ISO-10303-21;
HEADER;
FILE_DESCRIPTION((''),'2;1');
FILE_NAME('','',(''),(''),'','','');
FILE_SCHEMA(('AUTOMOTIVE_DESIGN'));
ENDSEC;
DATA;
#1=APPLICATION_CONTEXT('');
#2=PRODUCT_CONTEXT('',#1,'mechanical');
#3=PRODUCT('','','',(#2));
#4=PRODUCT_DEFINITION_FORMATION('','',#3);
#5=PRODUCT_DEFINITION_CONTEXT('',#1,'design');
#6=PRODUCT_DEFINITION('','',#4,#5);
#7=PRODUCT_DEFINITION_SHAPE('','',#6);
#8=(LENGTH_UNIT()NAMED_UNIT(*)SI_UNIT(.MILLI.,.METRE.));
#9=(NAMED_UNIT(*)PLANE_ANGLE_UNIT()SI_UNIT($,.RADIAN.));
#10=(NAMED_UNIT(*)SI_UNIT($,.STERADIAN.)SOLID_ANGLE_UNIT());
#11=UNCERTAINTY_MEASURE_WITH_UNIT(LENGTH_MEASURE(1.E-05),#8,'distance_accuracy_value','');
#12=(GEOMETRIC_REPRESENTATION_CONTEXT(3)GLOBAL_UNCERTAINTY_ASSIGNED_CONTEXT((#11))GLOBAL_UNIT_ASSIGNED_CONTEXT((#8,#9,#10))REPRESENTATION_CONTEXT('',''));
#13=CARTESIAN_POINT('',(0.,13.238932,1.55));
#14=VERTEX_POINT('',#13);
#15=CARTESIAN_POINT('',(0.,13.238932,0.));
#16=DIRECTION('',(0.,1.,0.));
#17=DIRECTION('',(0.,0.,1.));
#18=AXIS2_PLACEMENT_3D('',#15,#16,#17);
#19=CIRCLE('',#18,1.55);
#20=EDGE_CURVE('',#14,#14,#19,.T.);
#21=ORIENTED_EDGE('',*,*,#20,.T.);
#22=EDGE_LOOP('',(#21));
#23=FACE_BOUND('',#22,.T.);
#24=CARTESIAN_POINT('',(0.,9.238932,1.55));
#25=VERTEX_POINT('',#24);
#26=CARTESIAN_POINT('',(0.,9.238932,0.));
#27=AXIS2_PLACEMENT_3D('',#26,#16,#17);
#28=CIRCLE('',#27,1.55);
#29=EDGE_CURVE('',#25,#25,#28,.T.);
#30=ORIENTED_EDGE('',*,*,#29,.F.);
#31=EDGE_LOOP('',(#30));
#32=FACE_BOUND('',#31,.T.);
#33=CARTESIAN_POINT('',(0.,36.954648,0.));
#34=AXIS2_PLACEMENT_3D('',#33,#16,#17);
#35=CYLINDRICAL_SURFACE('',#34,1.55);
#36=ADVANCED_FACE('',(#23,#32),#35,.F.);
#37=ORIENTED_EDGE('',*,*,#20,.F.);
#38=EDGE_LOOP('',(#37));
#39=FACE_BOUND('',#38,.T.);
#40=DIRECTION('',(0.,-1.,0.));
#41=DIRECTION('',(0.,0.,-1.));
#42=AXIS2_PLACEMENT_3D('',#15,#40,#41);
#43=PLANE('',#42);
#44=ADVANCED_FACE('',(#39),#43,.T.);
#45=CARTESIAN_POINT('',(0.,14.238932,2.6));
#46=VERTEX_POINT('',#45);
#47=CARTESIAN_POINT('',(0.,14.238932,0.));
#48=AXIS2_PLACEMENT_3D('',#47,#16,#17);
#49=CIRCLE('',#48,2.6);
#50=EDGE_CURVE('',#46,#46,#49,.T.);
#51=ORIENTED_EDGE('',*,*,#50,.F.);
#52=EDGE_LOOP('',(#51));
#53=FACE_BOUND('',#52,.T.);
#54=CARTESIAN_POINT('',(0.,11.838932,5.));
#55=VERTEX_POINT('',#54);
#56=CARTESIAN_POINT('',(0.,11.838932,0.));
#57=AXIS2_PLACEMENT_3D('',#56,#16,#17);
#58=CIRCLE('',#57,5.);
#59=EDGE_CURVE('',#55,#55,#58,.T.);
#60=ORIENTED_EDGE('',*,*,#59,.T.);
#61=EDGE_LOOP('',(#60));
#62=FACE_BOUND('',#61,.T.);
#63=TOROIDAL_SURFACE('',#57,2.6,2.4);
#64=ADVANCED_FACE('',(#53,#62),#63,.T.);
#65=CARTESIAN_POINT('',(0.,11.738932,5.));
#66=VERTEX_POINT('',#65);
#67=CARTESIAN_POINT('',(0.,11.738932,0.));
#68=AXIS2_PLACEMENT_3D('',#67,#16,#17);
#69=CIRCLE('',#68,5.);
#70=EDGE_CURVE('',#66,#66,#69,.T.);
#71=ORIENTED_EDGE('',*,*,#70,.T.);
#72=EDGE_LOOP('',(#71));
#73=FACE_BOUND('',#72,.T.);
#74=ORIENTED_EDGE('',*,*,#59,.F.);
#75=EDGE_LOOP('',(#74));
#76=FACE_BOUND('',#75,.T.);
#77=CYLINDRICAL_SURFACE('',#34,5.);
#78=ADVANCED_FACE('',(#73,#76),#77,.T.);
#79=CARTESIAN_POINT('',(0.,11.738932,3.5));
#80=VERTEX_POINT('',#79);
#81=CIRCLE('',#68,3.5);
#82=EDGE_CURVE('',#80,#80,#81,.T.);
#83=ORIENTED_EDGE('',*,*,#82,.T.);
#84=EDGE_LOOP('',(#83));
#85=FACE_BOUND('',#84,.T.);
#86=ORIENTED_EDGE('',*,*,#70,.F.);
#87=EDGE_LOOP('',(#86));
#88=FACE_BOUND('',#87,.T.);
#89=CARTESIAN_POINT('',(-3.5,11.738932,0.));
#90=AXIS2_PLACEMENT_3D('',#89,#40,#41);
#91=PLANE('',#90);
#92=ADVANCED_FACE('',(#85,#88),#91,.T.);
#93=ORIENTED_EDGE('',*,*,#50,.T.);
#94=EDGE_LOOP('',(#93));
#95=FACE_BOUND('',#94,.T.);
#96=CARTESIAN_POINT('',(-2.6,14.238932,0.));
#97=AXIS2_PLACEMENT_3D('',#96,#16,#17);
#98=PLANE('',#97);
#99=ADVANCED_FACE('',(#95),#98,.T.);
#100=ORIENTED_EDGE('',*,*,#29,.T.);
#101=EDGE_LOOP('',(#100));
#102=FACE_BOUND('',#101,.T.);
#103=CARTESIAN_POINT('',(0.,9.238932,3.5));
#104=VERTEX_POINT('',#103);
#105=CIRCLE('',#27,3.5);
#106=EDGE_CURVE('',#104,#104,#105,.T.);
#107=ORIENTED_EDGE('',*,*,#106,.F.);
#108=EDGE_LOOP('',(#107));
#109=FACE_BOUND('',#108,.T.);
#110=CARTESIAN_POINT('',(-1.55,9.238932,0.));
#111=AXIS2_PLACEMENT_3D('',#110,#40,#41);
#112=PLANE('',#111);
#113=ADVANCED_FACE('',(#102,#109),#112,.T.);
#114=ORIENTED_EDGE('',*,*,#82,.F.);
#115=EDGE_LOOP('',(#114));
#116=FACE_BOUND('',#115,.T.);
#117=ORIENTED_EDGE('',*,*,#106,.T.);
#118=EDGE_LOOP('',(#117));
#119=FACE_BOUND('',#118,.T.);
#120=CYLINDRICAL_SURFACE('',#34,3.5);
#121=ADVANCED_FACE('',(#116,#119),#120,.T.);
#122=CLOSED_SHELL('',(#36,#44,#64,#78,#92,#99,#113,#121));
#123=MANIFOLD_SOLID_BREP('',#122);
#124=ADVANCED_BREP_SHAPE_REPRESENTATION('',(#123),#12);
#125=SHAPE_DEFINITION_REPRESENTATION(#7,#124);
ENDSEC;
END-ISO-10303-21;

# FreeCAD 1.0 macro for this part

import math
import FreeCAD as App
import Part
import Sketcher
Q = App.Units.Quantity

doc = App.newDocument("Part")
params = doc.addObject("Spreadsheet::Sheet", "Params")
for row, (alias, value) in enumerate([
    ("sketch1_radius", "2.4 mm"),
    ("sketch1_height", "4 mm"),
    ("sketch1_height2", "1 mm"),
    ("sketch1_width", "2.6 mm"),
    ("sketch1_width2", "1.5 mm"),
    ("revolution_angle", "360 deg"),
], start=1):
    params.set(f"A{row}", alias)
    params.set(f"B{row}", "=" + value)
    params.setAlias(f"B{row}", alias)

body = doc.addObject("PartDesign::Body", "Body")

sketch1 = body.newObject("Sketcher::SketchObject", "Sketch")
sketch1.AttachmentSupport = (doc.getObject("XY_Plane"), [""])
sketch1.MapMode = "FlatFace"
sketch1.addGeometry([
    Part.LineSegment(App.Vector(-3.5, 9.24, 0), App.Vector(-1.55, 9.24, 0)),
    Part.LineSegment(App.Vector(-1.55, 9.24, 0), App.Vector(-1.55, 13.24, 0)),
    Part.LineSegment(App.Vector(-1.55, 13.24, 0), App.Vector(0, 13.24, 0)),
    Part.LineSegment(App.Vector(0, 13.24, 0), App.Vector(0, 14.24, 0)),
    Part.LineSegment(App.Vector(0, 14.24, 0), App.Vector(-2.6, 14.24, 0)),
    Part.ArcOfCircle(Part.Circle(App.Vector(-2.6, 11.84, 0), App.Vector(0, 0, 1), 2.4), math.radians(90), math.radians(180)),
    Part.LineSegment(App.Vector(-5, 11.84, 0), App.Vector(-5, 11.74, 0)),
    Part.LineSegment(App.Vector(-5, 11.74, 0), App.Vector(-3.5, 11.74, 0)),
    Part.LineSegment(App.Vector(-3.5, 11.74, 0), App.Vector(-3.5, 9.24, 0)),
], False)
sketch1.addConstraint([
    Sketcher.Constraint("Coincident", 0, 2, 1, 1),
    Sketcher.Constraint("Coincident", 1, 2, 2, 1),
    Sketcher.Constraint("Coincident", 2, 2, 3, 1),
    Sketcher.Constraint("Coincident", 3, 2, 4, 1),
    Sketcher.Constraint("Tangent", 4, 2, 5, 1),
    Sketcher.Constraint("Tangent", 5, 2, 6, 1),
    Sketcher.Constraint("Coincident", 6, 2, 7, 1),
    Sketcher.Constraint("Coincident", 7, 2, 8, 1),
    Sketcher.Constraint("Coincident", 8, 2, 0, 1),
    Sketcher.Constraint("Horizontal", 0),
    Sketcher.Constraint("Vertical", 1),
    Sketcher.Constraint("Horizontal", 2),
    Sketcher.Constraint("Vertical", 3),
    Sketcher.Constraint("Horizontal", 4),
    Sketcher.Constraint("Vertical", 6),
    Sketcher.Constraint("Horizontal", 7),
    Sketcher.Constraint("Vertical", 8),
    Sketcher.Constraint("PointOnObject", 2, 2, -2),
    Sketcher.Constraint("Radius", 5, Q("2.4 mm")),
    Sketcher.Constraint("DistanceY", 1, 1, 1, 2, Q("4 mm")),
    Sketcher.Constraint("DistanceY", 3, 1, 3, 2, Q("1 mm")),
    Sketcher.Constraint("DistanceX", 4, 2, 4, 1, Q("2.6 mm")),
    Sketcher.Constraint("DistanceX", 7, 1, 7, 2, Q("1.5 mm")),
    Sketcher.Constraint("DistanceY", 6, 2, 6, 1, Q("0.1 mm")),
    Sketcher.Constraint("DistanceX", 0, 1, 0, 2, Q("1.95 mm")),
    Sketcher.Constraint("DistanceY", -1, 1, 5, 3, Q("11.838932 mm")),
])
sketch1.setExpression("Constraints[18]", "Params.sketch1_radius")
sketch1.setExpression("Constraints[19]", "Params.sketch1_height")
sketch1.setExpression("Constraints[20]", "Params.sketch1_height2")
sketch1.setExpression("Constraints[21]", "Params.sketch1_width")
sketch1.setExpression("Constraints[22]", "Params.sketch1_width2")
revolution = body.newObject("PartDesign::Revolution", "Revolution")
revolution.Profile = sketch1
revolution.ReferenceAxis = (sketch1, ["V_Axis"])
revolution.setExpression("Angle", "Params.revolution_angle")

doc.recompute()
